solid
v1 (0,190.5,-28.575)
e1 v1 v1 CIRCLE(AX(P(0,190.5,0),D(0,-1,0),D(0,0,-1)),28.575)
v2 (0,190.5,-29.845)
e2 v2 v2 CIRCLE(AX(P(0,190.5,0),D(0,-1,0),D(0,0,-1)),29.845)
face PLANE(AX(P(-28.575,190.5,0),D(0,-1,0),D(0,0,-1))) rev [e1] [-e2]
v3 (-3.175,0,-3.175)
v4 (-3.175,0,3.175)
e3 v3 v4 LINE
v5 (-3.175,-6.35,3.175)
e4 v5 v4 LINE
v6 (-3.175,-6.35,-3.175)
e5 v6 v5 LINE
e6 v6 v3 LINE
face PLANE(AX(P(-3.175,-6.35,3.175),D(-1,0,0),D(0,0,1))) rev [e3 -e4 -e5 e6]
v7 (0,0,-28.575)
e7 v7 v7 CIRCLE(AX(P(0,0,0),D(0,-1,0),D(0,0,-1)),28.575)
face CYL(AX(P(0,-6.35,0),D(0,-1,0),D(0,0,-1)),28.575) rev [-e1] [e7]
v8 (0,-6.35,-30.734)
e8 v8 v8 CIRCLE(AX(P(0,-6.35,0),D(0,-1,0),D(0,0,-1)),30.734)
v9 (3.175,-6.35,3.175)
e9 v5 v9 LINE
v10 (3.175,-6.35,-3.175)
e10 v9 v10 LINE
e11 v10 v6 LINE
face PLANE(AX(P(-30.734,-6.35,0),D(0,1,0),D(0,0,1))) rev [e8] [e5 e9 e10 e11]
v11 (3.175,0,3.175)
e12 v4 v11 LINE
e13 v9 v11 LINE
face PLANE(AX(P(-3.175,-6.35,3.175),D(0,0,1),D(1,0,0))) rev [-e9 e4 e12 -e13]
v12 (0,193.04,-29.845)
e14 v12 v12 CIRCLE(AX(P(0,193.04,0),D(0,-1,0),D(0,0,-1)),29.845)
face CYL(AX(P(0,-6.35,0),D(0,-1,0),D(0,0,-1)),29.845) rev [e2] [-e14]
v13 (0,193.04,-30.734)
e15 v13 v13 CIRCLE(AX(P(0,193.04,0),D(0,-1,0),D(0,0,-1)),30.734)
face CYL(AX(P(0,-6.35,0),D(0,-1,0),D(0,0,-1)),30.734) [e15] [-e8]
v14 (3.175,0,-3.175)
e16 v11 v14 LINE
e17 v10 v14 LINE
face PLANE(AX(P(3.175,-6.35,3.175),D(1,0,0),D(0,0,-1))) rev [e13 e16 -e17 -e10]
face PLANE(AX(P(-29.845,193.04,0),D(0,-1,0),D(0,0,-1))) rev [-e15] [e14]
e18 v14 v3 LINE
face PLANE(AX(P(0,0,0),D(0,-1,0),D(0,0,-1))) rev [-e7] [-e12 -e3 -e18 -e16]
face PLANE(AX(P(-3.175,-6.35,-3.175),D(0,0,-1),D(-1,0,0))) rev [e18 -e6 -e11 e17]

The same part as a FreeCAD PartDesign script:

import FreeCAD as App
import Part
import Sketcher
from FreeCAD import Vector
Q = App.Units.Quantity


def add_polygon(sketch, points):
    """Adds a closed chain of lines whose ends are joined by coincident constraints."""
    first, n = sketch.GeometryCount, len(points)
    for a, b in zip(points, points[1:] + points[:1]):
        sketch.addGeometry(Part.LineSegment(App.Vector(*a, 0), App.Vector(*b, 0)), False)
    for i in range(n):
        sketch.addConstraint(Sketcher.Constraint("Coincident", first + i, 2, first + (i + 1) % n, 1))

doc = App.newDocument("Part")
params = doc.addObject("Spreadsheet::Sheet", "Params")
for row, (alias, value) in enumerate([
    ("sketch1_height", "7.5 in"),
    ("sketch1_height2", "0.1 in"),
    ("sketch1_width", "0.05 in"),
    ("sketch1_width2", "1.21 in"),
    ("sketch1_height3", "7.85 in"),
    ("revolution_angle", "360 deg"),
    ("sketch2_width", "0.25 in"),
], start=1):
    params.set(f"A{row}", alias)
    params.set(f"B{row}", "=" + value)
    params.setAlias(f"B{row}", alias)

body = doc.addObject("PartDesign::Body", "Body")

sketch1 = body.newObject("Sketcher::SketchObject", "Sketch")
sketch1.AttachmentSupport = (doc.getObject("XY_Plane"), [""])
sketch1.MapMode = "FlatFace"
add_polygon(sketch1, [(0, 0), (-28.6, 0), (-28.6, 190.5), (-29.8, 190.5), (-29.8, 193), (-30.7, 193), (-30.7, -6.3), (0, -6.3)])
sketch1.addConstraint([
    Sketcher.Constraint("Horizontal", 0),
    Sketcher.Constraint("Vertical", 1),
    Sketcher.Constraint("Horizontal", 2),
    Sketcher.Constraint("Vertical", 3),
    Sketcher.Constraint("Horizontal", 4),
    Sketcher.Constraint("Vertical", 5),
    Sketcher.Constraint("Horizontal", 6),
    Sketcher.Constraint("Vertical", 7),
    Sketcher.Constraint("Coincident", 7, 2, -1, 1),
    Sketcher.Constraint("DistanceY", 1, 1, 1, 2, Q("7.5 in")),
    Sketcher.Constraint("DistanceY", 3, 1, 3, 2, Q("0.1 in")),
    Sketcher.Constraint("DistanceX", 2, 2, 2, 1, Q("0.05 in")),
    Sketcher.Constraint("DistanceX", 6, 1, 6, 2, Q("1.21 in")),
    Sketcher.Constraint("DistanceY", 5, 2, 5, 1, Q("7.85 in")),
    Sketcher.Constraint("DistanceX", 0, 2, 0, 1, Q("1.125 in")),
])
sketch1.setExpression("Constraints[17]", "Params.sketch1_height")
sketch1.setExpression("Constraints[18]", "Params.sketch1_height2")
sketch1.setExpression("Constraints[19]", "Params.sketch1_width")
sketch1.setExpression("Constraints[20]", "Params.sketch1_width2")
sketch1.setExpression("Constraints[21]", "Params.sketch1_height3")
revolution = body.newObject("PartDesign::Revolution", "Revolution")
revolution.Profile = sketch1
revolution.ReferenceAxis = (sketch1, ["V_Axis"])
revolution.setExpression("Angle", "Params.revolution_angle")

sketch2 = body.newObject("Sketcher::SketchObject", "Sketch001")
sketch2.AttachmentSupport = (doc.getObject("XZ_Plane"), [""])
sketch2.MapMode = "FlatFace"
add_polygon(sketch2, [(-3, -3), (-3, 3), (3, 3), (3, -3)])
sketch2.addConstraint([
    Sketcher.Constraint("Vertical", 0),
    Sketcher.Constraint("Horizontal", 1),
    Sketcher.Constraint("Vertical", 2),
    Sketcher.Constraint("Horizontal", 3),
    Sketcher.Constraint("Symmetric", 0, 2, 2, 2, -1, 1),
    Sketcher.Constraint("Equal", 3, 0),
    Sketcher.Constraint("DistanceX", 1, 1, 1, 2, Q("0.25 in")),
])
sketch2.setExpression("Constraints[10]", "Params.sketch2_width")
pocket1 = body.newObject("PartDesign::Pocket", "Pocket")
pocket1.Profile = sketch2
pocket1.Type = "ThroughAll"
pocket1.Reversed = True

doc.recompute()
